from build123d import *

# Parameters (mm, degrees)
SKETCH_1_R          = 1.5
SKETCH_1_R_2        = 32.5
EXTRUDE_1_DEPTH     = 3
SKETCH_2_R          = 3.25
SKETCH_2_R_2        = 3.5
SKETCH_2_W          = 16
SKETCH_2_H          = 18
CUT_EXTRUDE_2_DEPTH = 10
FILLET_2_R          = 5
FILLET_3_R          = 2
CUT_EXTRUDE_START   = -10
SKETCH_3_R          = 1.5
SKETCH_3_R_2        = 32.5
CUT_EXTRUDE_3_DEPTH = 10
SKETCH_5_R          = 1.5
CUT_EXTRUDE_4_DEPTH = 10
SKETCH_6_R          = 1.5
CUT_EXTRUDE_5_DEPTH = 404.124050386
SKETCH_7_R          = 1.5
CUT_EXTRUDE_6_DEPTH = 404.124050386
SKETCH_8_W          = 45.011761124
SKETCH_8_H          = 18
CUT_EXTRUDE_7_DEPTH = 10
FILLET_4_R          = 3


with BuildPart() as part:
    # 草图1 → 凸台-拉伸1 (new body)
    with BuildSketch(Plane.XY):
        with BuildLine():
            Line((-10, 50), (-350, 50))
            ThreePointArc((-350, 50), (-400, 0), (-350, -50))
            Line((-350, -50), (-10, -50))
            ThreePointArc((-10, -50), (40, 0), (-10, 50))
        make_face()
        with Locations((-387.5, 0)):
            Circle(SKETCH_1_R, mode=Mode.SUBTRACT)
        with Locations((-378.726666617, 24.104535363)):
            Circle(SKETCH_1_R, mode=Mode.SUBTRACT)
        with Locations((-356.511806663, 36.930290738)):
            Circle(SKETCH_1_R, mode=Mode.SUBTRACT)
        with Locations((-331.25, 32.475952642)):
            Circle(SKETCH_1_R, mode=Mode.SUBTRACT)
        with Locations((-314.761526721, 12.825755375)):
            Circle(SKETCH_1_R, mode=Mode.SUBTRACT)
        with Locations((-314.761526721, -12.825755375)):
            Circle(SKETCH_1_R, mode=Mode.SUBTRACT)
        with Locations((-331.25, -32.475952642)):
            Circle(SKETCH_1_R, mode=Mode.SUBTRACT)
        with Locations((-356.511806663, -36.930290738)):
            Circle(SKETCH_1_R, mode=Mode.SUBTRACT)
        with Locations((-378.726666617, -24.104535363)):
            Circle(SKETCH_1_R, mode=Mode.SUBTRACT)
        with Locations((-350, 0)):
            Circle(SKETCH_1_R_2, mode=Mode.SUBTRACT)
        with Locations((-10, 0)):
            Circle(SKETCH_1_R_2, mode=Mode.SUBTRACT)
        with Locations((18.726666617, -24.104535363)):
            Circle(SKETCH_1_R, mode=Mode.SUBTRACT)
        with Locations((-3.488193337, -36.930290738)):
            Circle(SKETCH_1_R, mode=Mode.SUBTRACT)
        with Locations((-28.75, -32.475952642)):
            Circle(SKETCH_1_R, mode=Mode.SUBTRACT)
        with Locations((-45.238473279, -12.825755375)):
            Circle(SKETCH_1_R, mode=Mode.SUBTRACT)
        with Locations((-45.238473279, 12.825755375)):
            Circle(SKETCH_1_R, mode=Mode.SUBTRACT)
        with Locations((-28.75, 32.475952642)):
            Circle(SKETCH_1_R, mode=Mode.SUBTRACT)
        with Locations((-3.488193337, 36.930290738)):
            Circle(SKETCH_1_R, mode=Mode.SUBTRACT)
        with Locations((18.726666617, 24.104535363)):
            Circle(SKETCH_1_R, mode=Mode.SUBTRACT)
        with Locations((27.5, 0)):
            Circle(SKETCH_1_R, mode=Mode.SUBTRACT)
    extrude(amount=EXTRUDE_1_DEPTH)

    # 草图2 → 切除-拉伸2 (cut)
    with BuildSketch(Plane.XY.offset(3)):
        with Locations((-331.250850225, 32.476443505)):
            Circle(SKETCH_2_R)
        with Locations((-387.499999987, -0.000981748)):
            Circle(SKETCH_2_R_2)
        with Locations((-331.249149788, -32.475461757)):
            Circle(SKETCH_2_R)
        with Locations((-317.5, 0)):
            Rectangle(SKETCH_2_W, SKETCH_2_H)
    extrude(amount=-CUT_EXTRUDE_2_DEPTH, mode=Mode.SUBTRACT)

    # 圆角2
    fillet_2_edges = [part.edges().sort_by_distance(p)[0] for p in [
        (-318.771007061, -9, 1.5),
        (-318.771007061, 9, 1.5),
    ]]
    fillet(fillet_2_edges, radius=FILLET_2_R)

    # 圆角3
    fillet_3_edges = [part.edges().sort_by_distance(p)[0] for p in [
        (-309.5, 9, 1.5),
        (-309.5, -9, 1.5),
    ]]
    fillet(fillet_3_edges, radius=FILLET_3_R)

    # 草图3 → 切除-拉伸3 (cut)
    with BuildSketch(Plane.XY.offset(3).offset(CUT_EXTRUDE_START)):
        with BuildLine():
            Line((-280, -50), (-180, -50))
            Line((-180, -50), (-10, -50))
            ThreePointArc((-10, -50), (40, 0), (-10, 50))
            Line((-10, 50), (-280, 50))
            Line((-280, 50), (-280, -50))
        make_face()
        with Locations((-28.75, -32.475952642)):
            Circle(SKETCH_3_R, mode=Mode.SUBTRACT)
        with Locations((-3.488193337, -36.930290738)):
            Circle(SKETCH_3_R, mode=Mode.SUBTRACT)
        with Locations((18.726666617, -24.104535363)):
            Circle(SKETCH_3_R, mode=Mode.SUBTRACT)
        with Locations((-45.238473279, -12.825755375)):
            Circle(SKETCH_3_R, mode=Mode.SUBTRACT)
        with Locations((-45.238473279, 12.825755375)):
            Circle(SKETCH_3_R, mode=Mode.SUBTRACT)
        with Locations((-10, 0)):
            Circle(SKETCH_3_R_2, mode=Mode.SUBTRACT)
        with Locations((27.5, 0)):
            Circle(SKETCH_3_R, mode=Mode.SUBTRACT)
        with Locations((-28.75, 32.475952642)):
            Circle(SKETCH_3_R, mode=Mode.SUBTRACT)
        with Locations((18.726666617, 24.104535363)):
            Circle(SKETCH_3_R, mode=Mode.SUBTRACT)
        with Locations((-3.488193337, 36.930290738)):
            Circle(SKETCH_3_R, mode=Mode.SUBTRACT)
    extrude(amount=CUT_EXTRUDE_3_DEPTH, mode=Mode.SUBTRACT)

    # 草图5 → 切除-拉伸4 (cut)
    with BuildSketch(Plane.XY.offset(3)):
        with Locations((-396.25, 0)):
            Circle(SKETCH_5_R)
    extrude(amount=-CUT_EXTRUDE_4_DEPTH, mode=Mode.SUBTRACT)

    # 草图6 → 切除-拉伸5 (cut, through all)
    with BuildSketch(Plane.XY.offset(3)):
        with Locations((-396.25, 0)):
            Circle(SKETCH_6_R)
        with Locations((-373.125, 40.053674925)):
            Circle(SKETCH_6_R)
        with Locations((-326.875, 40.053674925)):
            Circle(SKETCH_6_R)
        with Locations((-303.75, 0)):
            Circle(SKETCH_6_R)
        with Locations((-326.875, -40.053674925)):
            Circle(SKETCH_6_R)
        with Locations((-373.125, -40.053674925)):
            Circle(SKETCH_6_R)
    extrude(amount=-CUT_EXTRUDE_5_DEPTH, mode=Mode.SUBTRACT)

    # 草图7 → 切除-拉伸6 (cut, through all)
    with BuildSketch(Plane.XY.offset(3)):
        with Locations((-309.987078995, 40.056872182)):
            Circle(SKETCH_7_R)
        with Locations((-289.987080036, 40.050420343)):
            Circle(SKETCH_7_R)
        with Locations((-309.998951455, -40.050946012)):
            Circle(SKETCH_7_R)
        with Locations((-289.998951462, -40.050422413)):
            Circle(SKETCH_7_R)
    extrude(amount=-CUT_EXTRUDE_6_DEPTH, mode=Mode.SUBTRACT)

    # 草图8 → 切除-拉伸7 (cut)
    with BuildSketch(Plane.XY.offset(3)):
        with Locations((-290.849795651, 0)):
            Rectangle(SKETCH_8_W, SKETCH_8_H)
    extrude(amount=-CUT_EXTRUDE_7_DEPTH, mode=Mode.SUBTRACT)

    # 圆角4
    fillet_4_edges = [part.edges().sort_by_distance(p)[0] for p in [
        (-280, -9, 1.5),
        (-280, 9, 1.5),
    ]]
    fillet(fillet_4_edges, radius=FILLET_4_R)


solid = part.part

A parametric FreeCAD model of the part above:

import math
import FreeCAD as App
import Part
import Sketcher
from FreeCAD import Vector
Q = App.Units.Quantity


def edges_at(feature, points):
    """Names of the edges that pass closest to the given points."""
    edges = feature.Shape.Edges
    near = lambda p: min(range(len(edges)), key=lambda i: edges[i].distToShape(Part.Vertex(*p))[0])
    return sorted({f"Edge{near(p) + 1}" for p in points})


def add_polygon(sketch, points):
    """Adds a closed chain of lines whose ends are joined by coincident constraints."""
    first, n = sketch.GeometryCount, len(points)
    for a, b in zip(points, points[1:] + points[:1]):
        sketch.addGeometry(Part.LineSegment(App.Vector(*a, 0), App.Vector(*b, 0)), False)
    for i in range(n):
        sketch.addConstraint(Sketcher.Constraint("Coincident", first + i, 2, first + (i + 1) % n, 1))

doc = App.newDocument("Part")
params = doc.addObject("Spreadsheet::Sheet", "Params")
for row, (alias, value) in enumerate([
    ("sketch1_diameter", "3 mm"),
    ("sketch1_diameter2", "65 mm"),
    ("sketch1_radius", "50 mm"),
    ("sketch1_width", "340 mm"),
    ("pad1_length", "3 mm"),
    ("sketch2_diameter", "7 mm"),
    ("sketch2_diameter2", "6.5 mm"),
    ("sketch2_width", "16 mm"),
    ("sketch2_height", "18 mm"),
    ("pocket1_length", "10 mm"),
    ("fillet_radius", "5 mm"),
    ("fillet2_radius", "2 mm"),
    ("sketch3_diameter", "3 mm"),
    ("sketch3_diameter2", "65 mm"),
    ("sketch3_radius", "50 mm"),
    ("sketch3_width", "270 mm"),
    ("pocket2_length", "10 mm"),
    ("sketch4_diameter", "3 mm"),
    ("pocket3_length", "10 mm"),
    ("sketch5_diameter", "3 mm"),
    ("sketch6_diameter", "3 mm"),
    ("sketch7_height", "18 mm"),
    ("pocket6_length", "10 mm"),
    ("fillet3_radius", "3 mm"),
], start=1):
    params.set(f"A{row}", alias)
    params.set(f"B{row}", "=" + value)
    params.setAlias(f"B{row}", alias)

body = doc.addObject("PartDesign::Body", "Body")

# Sketch on XY plane
sketch1 = body.newObject("Sketcher::SketchObject", "Sketch")
sketch1.AttachmentSupport = (doc.getObject("XY_Plane"), [""])
sketch1.MapMode = "FlatFace"
sketch1.addGeometry([
    Part.LineSegment(Vector(-10, 50, 0), Vector(-350, 50, 0)),  # 0
    Part.ArcOfCircle(Part.Circle(Vector(-350, 0, 0), Vector(0, 0, 1), 50), math.radians(90), math.radians(270)),  # 1
    Part.LineSegment(Vector(-350, -50, 0), Vector(-10, -50, 0)),  # 2
    Part.ArcOfCircle(Part.Circle(Vector(-10, 0, 0), Vector(0, 0, 1), 50), math.radians(-90), math.radians(90)),  # 3
    Part.Circle(Vector(-356.5, -36.9, 0), Vector(0, 0, 1), 1.5),  # 4
    Part.Circle(Vector(-331.2, -32.5, 0), Vector(0, 0, 1), 1.5),  # 5
    Part.Circle(Vector(-378.7, -24.1, 0), Vector(0, 0, 1), 1.5),  # 6
    Part.Circle(Vector(-314.8, -12.8, 0), Vector(0, 0, 1), 1.5),  # 7
    Part.Circle(Vector(-28.8, -32.5, 0), Vector(0, 0, 1), 1.5),  # 8
    Part.Circle(Vector(-3.5, -36.9, 0), Vector(0, 0, 1), 1.5),  # 9
    Part.Circle(Vector(18.7, -24.1, 0), Vector(0, 0, 1), 1.5),  # 10
    Part.Circle(Vector(-45.2, -12.8, 0), Vector(0, 0, 1), 1.5),  # 11
    Part.Circle(Vector(-387.5, 0, 0), Vector(0, 0, 1), 1.5),  # 12
    Part.Circle(Vector(-350, 0, 0), Vector(0, 0, 1), 32.5),  # 13
    Part.Circle(Vector(-314.8, 12.8, 0), Vector(0, 0, 1), 1.5),  # 14
    Part.Circle(Vector(-378.7, 24.1, 0), Vector(0, 0, 1), 1.5),  # 15
    Part.Circle(Vector(-356.5, 36.9, 0), Vector(0, 0, 1), 1.5),  # 16
    Part.Circle(Vector(-331.2, 32.5, 0), Vector(0, 0, 1), 1.5),  # 17
    Part.Circle(Vector(-10, 0, 0), Vector(0, 0, 1), 32.5),  # 18
    Part.Circle(Vector(27.5, 0, 0), Vector(0, 0, 1), 1.5),  # 19
    Part.Circle(Vector(-45.2, 12.8, 0), Vector(0, 0, 1), 1.5),  # 20
    Part.Circle(Vector(18.7, 24.1, 0), Vector(0, 0, 1), 1.5),  # 21
    Part.Circle(Vector(-28.8, 32.5, 0), Vector(0, 0, 1), 1.5),  # 22
    Part.Circle(Vector(-3.5, 36.9, 0), Vector(0, 0, 1), 1.5),  # 23
], False)
sketch1.addConstraint([
    Sketcher.Constraint("Tangent", 0, 2, 1, 1),
    Sketcher.Constraint("Tangent", 1, 2, 2, 1),
    Sketcher.Constraint("Tangent", 2, 2, 3, 1),
    Sketcher.Constraint("Tangent", 3, 2, 0, 1),
    Sketcher.Constraint("Horizontal", 0),
    Sketcher.Constraint("Horizontal", 2),
    Sketcher.Constraint("Coincident", 13, 3, 1, 3),
    Sketcher.Constraint("Coincident", 18, 3, 3, 3),
    Sketcher.Constraint("Equal", 4, 5),
    Sketcher.Constraint("Equal", 5, 6),
    Sketcher.Constraint("Equal", 6, 7),
    Sketcher.Constraint("Equal", 7, 8),
    Sketcher.Constraint("Equal", 8, 9),
    Sketcher.Constraint("Equal", 9, 10),
    Sketcher.Constraint("Equal", 10, 11),
    Sketcher.Constraint("Equal", 11, 12),
    Sketcher.Constraint("Equal", 12, 14),
    Sketcher.Constraint("Equal", 14, 15),
    Sketcher.Constraint("Equal", 15, 16),
    Sketcher.Constraint("Equal", 16, 17),
    Sketcher.Constraint("Equal", 13, 18),
    Sketcher.Constraint("Equal", 17, 19),
    Sketcher.Constraint("Equal", 19, 20),
    Sketcher.Constraint("Equal", 20, 21),
    Sketcher.Constraint("Equal", 21, 22),
    Sketcher.Constraint("Equal", 22, 23),
    Sketcher.Constraint("Symmetric", 7, 3, 14, 3, -1),
    Sketcher.Constraint("Symmetric", 6, 3, 15, 3, -1),
    Sketcher.Constraint("Symmetric", 4, 3, 16, 3, -1),
    Sketcher.Constraint("Symmetric", 5, 3, 17, 3, -1),
    Sketcher.Constraint("Symmetric", 11, 3, 20, 3, -1),
    Sketcher.Constraint("Symmetric", 10, 3, 21, 3, -1),
    Sketcher.Constraint("Symmetric", 8, 3, 22, 3, -1),
    Sketcher.Constraint("Symmetric", 9, 3, 23, 3, -1),
    Sketcher.Constraint("PointOnObject", 1, 3, -1),
    Sketcher.Constraint("PointOnObject", 12, 3, -1),
    Sketcher.Constraint("PointOnObject", 19, 3, -1),
    Sketcher.Constraint("Horizontal", 5, 3, 8, 3),
    Sketcher.Constraint("Horizontal", 4, 3, 9, 3),
    Sketcher.Constraint("Horizontal", 6, 3, 10, 3),
    Sketcher.Constraint("Horizontal", 7, 3, 11, 3),
    Sketcher.Constraint("Diameter", 4, Q("3 mm")),
    Sketcher.Constraint("Diameter", 13, Q("65 mm")),
    Sketcher.Constraint("Radius", 1, Q("50 mm")),
    Sketcher.Constraint("DistanceX", 0, 2, 0, 1, Q("340 mm")),
    Sketcher.Constraint("DistanceX", 1, 3, -1, 1, Q("350 mm")),
    Sketcher.Constraint("DistanceX", 12, 3, -1, 1, Q("387.5 mm")),
    Sketcher.Constraint("DistanceX", -1, 1, 19, 3, Q("27.5 mm")),
    Sketcher.Constraint("DistanceX", 5, 3, 8, 3, Q("302.5 mm")),
    Sketcher.Constraint("DistanceX", 5, 3, -1, 1, Q("331.25 mm")),
    Sketcher.Constraint("DistanceY", 4, 3, -1, 1, Q("36.930291 mm")),
    Sketcher.Constraint("DistanceY", 4, 3, 5, 3, Q("4.454338 mm")),
    Sketcher.Constraint("DistanceX", 6, 3, 4, 3, Q("22.21486 mm")),
    Sketcher.Constraint("DistanceX", 4, 3, 7, 3, Q("41.75028 mm")),
    Sketcher.Constraint("DistanceY", 6, 3, 7, 3, Q("11.27878 mm")),
    Sketcher.Constraint("DistanceX", 9, 3, 10, 3, Q("22.21486 mm")),
    Sketcher.Constraint("DistanceX", 11, 3, 9, 3, Q("41.75028 mm")),
    Sketcher.Constraint("DistanceY", 7, 3, 14, 3, Q("25.651511 mm")),
    Sketcher.Constraint("DistanceX", 4, 3, -1, 1, Q("356.511807 mm")),
    Sketcher.Constraint("DistanceX", 9, 3, -1, 1, Q("3.488193 mm")),
])
sketch1.setExpression("Constraints[41]", "Params.sketch1_diameter")
sketch1.setExpression("Constraints[42]", "Params.sketch1_diameter2")
sketch1.setExpression("Constraints[43]", "Params.sketch1_radius")
sketch1.setExpression("Constraints[44]", "Params.sketch1_width")
pad1 = body.newObject("PartDesign::Pad", "Pad")
pad1.Profile = sketch1
pad1.setExpression("Length", "Params.pad1_length")

# Sketch on XY plane
sketch2 = body.newObject("Sketcher::SketchObject", "Sketch001")
sketch2.AttachmentSupport = (doc.getObject("XY_Plane"), [""])
sketch2.MapMode = "FlatFace"
sketch2.AttachmentOffset = App.Placement(Vector(0, 0, 3), App.Rotation())
sketch2.addGeometry(Part.Circle(Vector(-331.3, 32.5, 0), Vector(0, 0, 1), 3.2), False)  # 0
sketch2.addGeometry(Part.Circle(Vector(-387.5, 0, 0), Vector(0, 0, 1), 3.5), False)  # 1
sketch2.addGeometry(Part.Circle(Vector(-331.2, -32.5, 0), Vector(0, 0, 1), 3.2), False)  # 2
add_polygon(sketch2, [(-325.5, 9), (-325.5, -9), (-309.5, -9), (-309.5, 9)])  # lines 3-6
sketch2.addConstraint([
    Sketcher.Constraint("Vertical", 3),
    Sketcher.Constraint("Horizontal", 4),
    Sketcher.Constraint("Vertical", 5),
    Sketcher.Constraint("Horizontal", 6),
    Sketcher.Constraint("Equal", 0, 2),
    Sketcher.Constraint("Diameter", 1, Q("7 mm")),
    Sketcher.Constraint("Diameter", 0, Q("6.5 mm")),
    Sketcher.Constraint("DistanceX", 4, 1, 4, 2, Q("16 mm")),
    Sketcher.Constraint("DistanceY", 3, 2, 3, 1, Q("18 mm")),
    Sketcher.Constraint("DistanceY", 3, 2, -1, 1, Q("9 mm")),
    Sketcher.Constraint("DistanceX", 1, 3, 3, 2, Q("62 mm")),
    Sketcher.Constraint("DistanceX", 1, 3, -1, 1, Q("387.5 mm")),
    Sketcher.Constraint("DistanceX", 0, 3, 2, 3, Q("0.0017 mm")),
    Sketcher.Constraint("DistanceX", 0, 3, -1, 1, Q("331.25085 mm")),
    Sketcher.Constraint("DistanceY", 1, 3, -1, 1, Q("0.000982 mm")),
    Sketcher.Constraint("DistanceY", 2, 3, -1, 1, Q("32.475462 mm")),
    Sketcher.Constraint("DistanceY", -1, 1, 0, 3, Q("32.476444 mm")),
])
sketch2.setExpression("Constraints[9]", "Params.sketch2_diameter")
sketch2.setExpression("Constraints[10]", "Params.sketch2_diameter2")
sketch2.setExpression("Constraints[11]", "Params.sketch2_width")
sketch2.setExpression("Constraints[12]", "Params.sketch2_height")
pocket1 = body.newObject("PartDesign::Pocket", "Pocket")
pocket1.Profile = sketch2
pocket1.setExpression("Length", "Params.pocket1_length")
doc.recompute()

fillet = body.newObject("PartDesign::Fillet", "Fillet")
fillet.Base = (pocket1, edges_at(pocket1, [(-318.771, -9, 1.5), (-318.771, 9, 1.5)]))
fillet.setExpression("Radius", "Params.fillet_radius")
doc.recompute()

fillet2 = body.newObject("PartDesign::Fillet", "Fillet001")
fillet2.Base = (fillet, edges_at(fillet, [(-309.5, 9, 1.5), (-309.5, -9, 1.5)]))
fillet2.setExpression("Radius", "Params.fillet2_radius")

# Sketch on XY plane
sketch3 = body.newObject("Sketcher::SketchObject", "Sketch002")
sketch3.AttachmentSupport = (doc.getObject("XY_Plane"), [""])
sketch3.MapMode = "FlatFace"
sketch3.AttachmentOffset = App.Placement(Vector(0, 0, -7), App.Rotation())
sketch3.addGeometry([
    Part.LineSegment(Vector(-280, -50, 0), Vector(-10, -50, 0)),  # 0
    Part.ArcOfCircle(Part.Circle(Vector(-10, 0, 0), Vector(0, 0, 1), 50), math.radians(-90), math.radians(90)),  # 1
    Part.LineSegment(Vector(-10, 50, 0), Vector(-280, 50, 0)),  # 2
    Part.LineSegment(Vector(-280, 50, 0), Vector(-280, -50, 0)),  # 3
    Part.Circle(Vector(-28.8, -32.5, 0), Vector(0, 0, 1), 1.5),  # 4
    Part.Circle(Vector(-45.2, -12.8, 0), Vector(0, 0, 1), 1.5),  # 5
    Part.Circle(Vector(-3.5, -36.9, 0), Vector(0, 0, 1), 1.5),  # 6
    Part.Circle(Vector(18.7, -24.1, 0), Vector(0, 0, 1), 1.5),  # 7
    Part.Circle(Vector(-45.2, 12.8, 0), Vector(0, 0, 1), 1.5),  # 8
    Part.Circle(Vector(-10, 0, 0), Vector(0, 0, 1), 32.5),  # 9
    Part.Circle(Vector(-28.8, 32.5, 0), Vector(0, 0, 1), 1.5),  # 10
    Part.Circle(Vector(27.5, 0, 0), Vector(0, 0, 1), 1.5),  # 11
    Part.Circle(Vector(-3.5, 36.9, 0), Vector(0, 0, 1), 1.5),  # 12
    Part.Circle(Vector(18.7, 24.1, 0), Vector(0, 0, 1), 1.5),  # 13
], False)
sketch3.addConstraint([
    Sketcher.Constraint("Tangent", 0, 2, 1, 1),
    Sketcher.Constraint("Tangent", 1, 2, 2, 1),
    Sketcher.Constraint("Coincident", 2, 2, 3, 1),
    Sketcher.Constraint("Coincident", 3, 2, 0, 1),
    Sketcher.Constraint("Horizontal", 0),
    Sketcher.Constraint("Horizontal", 2),
    Sketcher.Constraint("Vertical", 3),
    Sketcher.Constraint("Coincident", 9, 3, 1, 3),
    Sketcher.Constraint("Equal", 4, 5),
    Sketcher.Constraint("Equal", 5, 6),
    Sketcher.Constraint("Equal", 6, 7),
    Sketcher.Constraint("Equal", 7, 8),
    Sketcher.Constraint("Equal", 8, 10),
    Sketcher.Constraint("Equal", 10, 11),
    Sketcher.Constraint("Equal", 11, 12),
    Sketcher.Constraint("Equal", 12, 13),
    Sketcher.Constraint("Symmetric", 5, 3, 8, 3, -1),
    Sketcher.Constraint("Symmetric", 4, 3, 10, 3, -1),
    Sketcher.Constraint("Symmetric", 6, 3, 12, 3, -1),
    Sketcher.Constraint("Symmetric", 7, 3, 13, 3, -1),
    Sketcher.Constraint("PointOnObject", 1, 3, -1),
    Sketcher.Constraint("PointOnObject", 11, 3, -1),
    Sketcher.Constraint("Diameter", 4, Q("3 mm")),
    Sketcher.Constraint("Diameter", 9, Q("65 mm")),
    Sketcher.Constraint("Radius", 1, Q("50 mm")),
    Sketcher.Constraint("DistanceX", 0, 1, 0, 2, Q("270 mm")),
    Sketcher.Constraint("DistanceX", 1, 3, -1, 1, Q("10 mm")),
    Sketcher.Constraint("DistanceX", -1, 1, 11, 3, Q("27.5 mm")),
    Sketcher.Constraint("DistanceX", 4, 3, -1, 1, Q("28.75 mm")),
    Sketcher.Constraint("DistanceY", 6, 3, -1, 1, Q("36.930291 mm")),
    Sketcher.Constraint("DistanceY", 6, 3, 4, 3, Q("4.454338 mm")),
    Sketcher.Constraint("DistanceX", 5, 3, 6, 3, Q("41.75028 mm")),
    Sketcher.Constraint("DistanceX", 6, 3, 7, 3, Q("22.21486 mm")),
    Sketcher.Constraint("DistanceY", 7, 3, 5, 3, Q("11.27878 mm")),
    Sketcher.Constraint("DistanceY", 5, 3, 8, 3, Q("25.651511 mm")),
    Sketcher.Constraint("DistanceX", 5, 3, -1, 1, Q("45.238473 mm")),
])
sketch3.setExpression("Constraints[22]", "Params.sketch3_diameter")
sketch3.setExpression("Constraints[23]", "Params.sketch3_diameter2")
sketch3.setExpression("Constraints[24]", "Params.sketch3_radius")
sketch3.setExpression("Constraints[25]", "Params.sketch3_width")
pocket2 = body.newObject("PartDesign::Pocket", "Pocket001")
pocket2.Profile = sketch3
pocket2.setExpression("Length", "Params.pocket2_length")
pocket2.Reversed = True

# Sketch on XY plane
sketch4 = body.newObject("Sketcher::SketchObject", "Sketch003")
sketch4.AttachmentSupport = (doc.getObject("XY_Plane"), [""])
sketch4.MapMode = "FlatFace"
sketch4.AttachmentOffset = App.Placement(Vector(0, 0, 3), App.Rotation())
sketch4.addGeometry(Part.Circle(Vector(-396.2, 0, 0), Vector(0, 0, 1), 1.5), False)
sketch4.addConstraint([
    Sketcher.Constraint("PointOnObject", 0, 3, -1),
    Sketcher.Constraint("Diameter", 0, Q("3 mm")),
    Sketcher.Constraint("DistanceX", 0, 3, -1, 1, Q("396.25 mm")),
])
sketch4.setExpression("Constraints[1]", "Params.sketch4_diameter")
pocket3 = body.newObject("PartDesign::Pocket", "Pocket002")
pocket3.Profile = sketch4
pocket3.setExpression("Length", "Params.pocket3_length")

# Sketch on XY plane
sketch5 = body.newObject("Sketcher::SketchObject", "Sketch004")
sketch5.AttachmentSupport = (doc.getObject("XY_Plane"), [""])
sketch5.MapMode = "FlatFace"
sketch5.AttachmentOffset = App.Placement(Vector(0, 0, 3), App.Rotation())
sketch5.addGeometry([
    Part.Circle(Vector(-396.2, 0, 0), Vector(0, 0, 1), 1.5),  # 0
    Part.Circle(Vector(-373.1, 40.1, 0), Vector(0, 0, 1), 1.5),  # 1
    Part.Circle(Vector(-326.9, 40.1, 0), Vector(0, 0, 1), 1.5),  # 2
    Part.Circle(Vector(-303.8, 0, 0), Vector(0, 0, 1), 1.5),  # 3
    Part.Circle(Vector(-326.9, -40.1, 0), Vector(0, 0, 1), 1.5),  # 4
    Part.Circle(Vector(-373.1, -40.1, 0), Vector(0, 0, 1), 1.5),  # 5
], False)
sketch5.addConstraint([
    Sketcher.Constraint("Equal", 0, 1),
    Sketcher.Constraint("Equal", 1, 2),
    Sketcher.Constraint("Equal", 2, 3),
    Sketcher.Constraint("Equal", 3, 4),
    Sketcher.Constraint("Equal", 4, 5),
    Sketcher.Constraint("Symmetric", 2, 3, 4, 3, -1),
    Sketcher.Constraint("Symmetric", 1, 3, 5, 3, -1),
    Sketcher.Constraint("PointOnObject", 0, 3, -1),
    Sketcher.Constraint("PointOnObject", 3, 3, -1),
    Sketcher.Constraint("Horizontal", 1, 3, 2, 3),
    Sketcher.Constraint("Diameter", 0, Q("3 mm")),
    Sketcher.Constraint("DistanceX", 0, 3, 3, 3, Q("92.5 mm")),
    Sketcher.Constraint("DistanceX", 0, 3, -1, 1, Q("396.25 mm")),
    Sketcher.Constraint("DistanceX", 1, 3, 2, 3, Q("46.25 mm")),
    Sketcher.Constraint("DistanceX", 1, 3, -1, 1, Q("373.125 mm")),
    Sketcher.Constraint("DistanceY", 4, 3, 2, 3, Q("80.10735 mm")),
])
sketch5.setExpression("Constraints[10]", "Params.sketch5_diameter")
pocket4 = body.newObject("PartDesign::Pocket", "Pocket003")
pocket4.Profile = sketch5
pocket4.Type = "ThroughAll"

# Sketch on XY plane
sketch6 = body.newObject("Sketcher::SketchObject", "Sketch005")
sketch6.AttachmentSupport = (doc.getObject("XY_Plane"), [""])
sketch6.MapMode = "FlatFace"
sketch6.AttachmentOffset = App.Placement(Vector(0, 0, 3), App.Rotation())
sketch6.addGeometry([
    Part.Circle(Vector(-310, 40.1, 0), Vector(0, 0, 1), 1.5),
    Part.Circle(Vector(-290, 40.1, 0), Vector(0, 0, 1), 1.5),
    Part.Circle(Vector(-310, -40.1, 0), Vector(0, 0, 1), 1.5),
    Part.Circle(Vector(-290, -40.1, 0), Vector(0, 0, 1), 1.5),
], False)
sketch6.addConstraint([
    Sketcher.Constraint("Equal", 0, 1),
    Sketcher.Constraint("Equal", 1, 2),
    Sketcher.Constraint("Equal", 2, 3),
    Sketcher.Constraint("Diameter", 0, Q("3 mm")),
    Sketcher.Constraint("DistanceX", 0, 3, 1, 3, Q("19.999999 mm")),
    Sketcher.Constraint("DistanceX", 2, 3, 3, 3, Q("20 mm")),
    Sketcher.Constraint("DistanceX", 0, 3, -1, 1, Q("309.987079 mm")),
    Sketcher.Constraint("DistanceY", -1, 1, 1, 3, Q("40.05042 mm")),
    Sketcher.Constraint("DistanceX", 2, 3, -1, 1, Q("309.998951 mm")),
    Sketcher.Constraint("DistanceY", 1, 3, 0, 3, Q("0.006452 mm")),
    Sketcher.Constraint("DistanceY", 2, 3, 0, 3, Q("80.107818 mm")),
    Sketcher.Constraint("DistanceY", 3, 3, -1, 1, Q("40.050422 mm")),
])
sketch6.setExpression("Constraints[3]", "Params.sketch6_diameter")
pocket5 = body.newObject("PartDesign::Pocket", "Pocket004")
pocket5.Profile = sketch6
pocket5.Type = "ThroughAll"

# Sketch on XY plane
sketch7 = body.newObject("Sketcher::SketchObject", "Sketch006")
sketch7.AttachmentSupport = (doc.getObject("XY_Plane"), [""])
sketch7.MapMode = "FlatFace"
sketch7.AttachmentOffset = App.Placement(Vector(0, 0, 3), App.Rotation())
add_polygon(sketch7, [(-313, 9), (-313, -9), (-268, -9), (-268, 9)])  # lines 0-3
sketch7.addConstraint([
    Sketcher.Constraint("Vertical", 0),
    Sketcher.Constraint("Horizontal", 1),
    Sketcher.Constraint("Vertical", 2),
    Sketcher.Constraint("Horizontal", 3),
    Sketcher.Constraint("DistanceY", 0, 2, 0, 1, Q("18 mm")),
    Sketcher.Constraint("DistanceY", 0, 2, -1, 1, Q("9 mm")),
    Sketcher.Constraint("DistanceX", 1, 1, 1, 2, Q("45.011761 mm")),
    Sketcher.Constraint("DistanceX", 0, 2, -1, 1, Q("313.355676 mm")),
])
sketch7.setExpression("Constraints[8]", "Params.sketch7_height")
pocket6 = body.newObject("PartDesign::Pocket", "Pocket005")
pocket6.Profile = sketch7
pocket6.setExpression("Length", "Params.pocket6_length")
doc.recompute()

fillet3 = body.newObject("PartDesign::Fillet", "Fillet002")
fillet3.Base = (pocket6, edges_at(pocket6, [(-280, -9, 1.5), (-280, 9, 1.5)]))
fillet3.setExpression("Radius", "Params.fillet3_radius")

doc.recompute()
